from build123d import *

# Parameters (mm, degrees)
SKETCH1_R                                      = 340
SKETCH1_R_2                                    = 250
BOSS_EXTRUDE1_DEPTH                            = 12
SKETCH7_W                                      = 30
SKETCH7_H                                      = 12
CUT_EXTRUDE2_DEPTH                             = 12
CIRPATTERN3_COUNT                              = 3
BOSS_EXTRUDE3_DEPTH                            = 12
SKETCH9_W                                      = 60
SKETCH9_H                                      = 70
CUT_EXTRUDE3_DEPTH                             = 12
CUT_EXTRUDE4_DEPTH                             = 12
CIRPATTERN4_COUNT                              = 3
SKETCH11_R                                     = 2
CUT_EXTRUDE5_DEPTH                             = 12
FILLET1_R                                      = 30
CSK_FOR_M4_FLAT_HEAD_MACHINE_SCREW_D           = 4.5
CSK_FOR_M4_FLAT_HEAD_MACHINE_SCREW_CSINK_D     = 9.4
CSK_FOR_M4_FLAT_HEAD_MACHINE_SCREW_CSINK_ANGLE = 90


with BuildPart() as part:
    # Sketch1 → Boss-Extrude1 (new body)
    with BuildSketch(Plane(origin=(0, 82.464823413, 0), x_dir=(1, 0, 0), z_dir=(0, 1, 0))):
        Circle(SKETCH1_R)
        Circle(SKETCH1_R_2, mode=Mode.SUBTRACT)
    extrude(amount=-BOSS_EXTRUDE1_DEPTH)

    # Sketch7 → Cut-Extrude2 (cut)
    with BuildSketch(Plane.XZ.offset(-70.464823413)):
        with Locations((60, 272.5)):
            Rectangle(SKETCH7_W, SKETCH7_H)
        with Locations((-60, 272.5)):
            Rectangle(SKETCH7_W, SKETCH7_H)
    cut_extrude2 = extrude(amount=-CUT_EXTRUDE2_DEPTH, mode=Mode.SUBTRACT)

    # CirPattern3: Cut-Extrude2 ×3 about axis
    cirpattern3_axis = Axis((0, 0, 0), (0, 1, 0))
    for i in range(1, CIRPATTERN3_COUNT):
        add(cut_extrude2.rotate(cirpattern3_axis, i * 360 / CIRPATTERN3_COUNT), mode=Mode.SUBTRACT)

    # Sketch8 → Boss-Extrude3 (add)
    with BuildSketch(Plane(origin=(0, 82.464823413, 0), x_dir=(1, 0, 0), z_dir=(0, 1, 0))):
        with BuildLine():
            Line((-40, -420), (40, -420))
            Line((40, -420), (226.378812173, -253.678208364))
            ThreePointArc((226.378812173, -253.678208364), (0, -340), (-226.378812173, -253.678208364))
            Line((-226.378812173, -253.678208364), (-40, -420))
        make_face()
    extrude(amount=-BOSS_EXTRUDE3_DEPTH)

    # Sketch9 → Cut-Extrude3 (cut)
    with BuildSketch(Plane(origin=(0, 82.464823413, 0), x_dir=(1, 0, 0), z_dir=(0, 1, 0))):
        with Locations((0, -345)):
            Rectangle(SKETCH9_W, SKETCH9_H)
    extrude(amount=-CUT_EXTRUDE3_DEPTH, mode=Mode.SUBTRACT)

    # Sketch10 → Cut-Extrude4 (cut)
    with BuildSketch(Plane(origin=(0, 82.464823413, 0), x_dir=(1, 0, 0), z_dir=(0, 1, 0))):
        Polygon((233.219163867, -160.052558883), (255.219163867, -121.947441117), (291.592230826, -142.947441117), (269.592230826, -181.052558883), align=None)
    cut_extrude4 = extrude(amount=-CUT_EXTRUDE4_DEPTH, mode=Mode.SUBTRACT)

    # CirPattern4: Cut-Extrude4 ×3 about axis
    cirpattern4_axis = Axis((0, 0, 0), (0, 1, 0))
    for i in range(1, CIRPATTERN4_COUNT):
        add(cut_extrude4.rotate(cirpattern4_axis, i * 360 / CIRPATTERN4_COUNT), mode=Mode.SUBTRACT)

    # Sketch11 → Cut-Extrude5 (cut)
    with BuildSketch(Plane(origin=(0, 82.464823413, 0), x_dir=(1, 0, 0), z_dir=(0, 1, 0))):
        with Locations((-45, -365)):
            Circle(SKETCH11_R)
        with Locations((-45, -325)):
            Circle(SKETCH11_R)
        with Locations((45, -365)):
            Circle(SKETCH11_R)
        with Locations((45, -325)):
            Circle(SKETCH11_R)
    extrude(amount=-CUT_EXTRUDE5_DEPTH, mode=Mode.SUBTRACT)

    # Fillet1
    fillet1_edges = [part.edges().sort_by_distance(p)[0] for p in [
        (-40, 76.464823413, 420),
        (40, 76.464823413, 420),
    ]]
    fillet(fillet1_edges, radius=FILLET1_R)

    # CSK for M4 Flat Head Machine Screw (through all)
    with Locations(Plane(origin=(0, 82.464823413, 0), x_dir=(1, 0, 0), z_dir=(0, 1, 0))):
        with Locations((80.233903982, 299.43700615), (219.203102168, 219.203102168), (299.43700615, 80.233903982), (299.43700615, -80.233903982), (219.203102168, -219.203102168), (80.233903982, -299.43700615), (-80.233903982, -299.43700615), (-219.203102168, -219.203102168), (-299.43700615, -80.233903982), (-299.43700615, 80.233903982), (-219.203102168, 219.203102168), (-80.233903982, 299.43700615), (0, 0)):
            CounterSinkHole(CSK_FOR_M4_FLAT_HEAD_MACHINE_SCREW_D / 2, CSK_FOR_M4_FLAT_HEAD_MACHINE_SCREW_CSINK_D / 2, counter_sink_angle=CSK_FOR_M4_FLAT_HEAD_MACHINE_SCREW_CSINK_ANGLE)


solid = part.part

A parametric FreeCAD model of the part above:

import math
import FreeCAD as App
import Part
import Sketcher

V = App.Vector
Q = App.Units.Quantity


def edges_at(feature, points):
    """Names of the edges that pass closest to the given points."""
    edges = feature.Shape.Edges
    near = lambda p: min(range(len(edges)), key=lambda i: edges[i].distToShape(Part.Vertex(*p))[0])
    return sorted({f"Edge{near(p) + 1}" for p in points})


def add_polygon(sketch, points):
    """Adds a closed chain of lines whose ends are joined by coincident constraints."""
    first, n = sketch.GeometryCount, len(points)
    for a, b in zip(points, points[1:] + points[:1]):
        sketch.addGeometry(Part.LineSegment(App.Vector(*a, 0), App.Vector(*b, 0)), False)
    for i in range(n):
        sketch.addConstraint(Sketcher.Constraint("Coincident", first + i, 2, first + (i + 1) % n, 1))

doc = App.newDocument("Part")
params = doc.addObject("Spreadsheet::Sheet", "Params")
for row, (alias, value) in enumerate([
    ("sketch1_diameter", "680 mm"),
    ("sketch1_diameter2", "500 mm"),
    ("pad1_length", "12 mm"),
    ("sketch2_width", "30 mm"),
    ("sketch2_height", "12 mm"),
    ("pocket1_length", "12 mm"),
    ("sketch3_radius", "340 mm"),
    ("sketch3_width", "80 mm"),
    ("pad2_length", "12 mm"),
    ("sketch4_width", "60 mm"),
    ("sketch4_height", "70 mm"),
    ("pocket2_length", "12 mm"),
    ("sketch5_length", "44 mm"),
    ("sketch5_length2", "42 mm"),
    ("pocket3_length", "12 mm"),
    ("sketch6_diameter", "4 mm"),
    ("pocket4_length", "12 mm"),
    ("fillet_radius", "30 mm"),
    ("sketch7_diameter", "4.5 mm"),
    ("hole_diameter", "4.5 mm"),
    ("hole_csink_diameter", "9.4 mm"),
], start=1):
    params.set(f"A{row}", alias)
    params.set(f"B{row}", "=" + value)
    params.setAlias(f"B{row}", alias)

body = doc.addObject("PartDesign::Body", "Body")

# Sketch on XZ plane
sketch1 = body.newObject("Sketcher::SketchObject", "Sketch")
sketch1.AttachmentSupport = (doc.getObject("XZ_Plane"), [""])
sketch1.MapMode = "FlatFace"
sketch1.AttachmentOffset = App.Placement(V(0, 0, -82.464823), App.Rotation())
sketch1.addGeometry([
    Part.Circle(V(0, 0, 0), V(0, 0, 1), 340),
    Part.Circle(V(0, 0, 0), V(0, 0, 1), 250),
], False)
sketch1.addConstraint([
    Sketcher.Constraint("Coincident", 0, 3, -1, 1),
    Sketcher.Constraint("Coincident", 1, 3, -1, 1),
    Sketcher.Constraint("Diameter", 0, Q("680 mm")),
    Sketcher.Constraint("Diameter", 1, Q("500 mm")),
])
sketch1.setExpression("Constraints[2]", "Params.sketch1_diameter")
sketch1.setExpression("Constraints[3]", "Params.sketch1_diameter2")
pad1 = body.newObject("PartDesign::Pad", "Pad")
pad1.Profile = sketch1
pad1.setExpression("Length", "Params.pad1_length")

# Sketch on XZ plane
sketch2 = body.newObject("Sketcher::SketchObject", "Sketch001")
sketch2.AttachmentSupport = (doc.getObject("XZ_Plane"), [""])
sketch2.MapMode = "FlatFace"
sketch2.AttachmentOffset = App.Placement(V(0, 0, -70.464823), App.Rotation())
add_polygon(sketch2, [(45, 278), (45, 266), (75, 266), (75, 278)])  # lines 0-3
add_polygon(sketch2, [(-75, 278), (-75, 266), (-45, 266), (-45, 278)])  # lines 4-7
sketch2.addConstraint([
    Sketcher.Constraint("Vertical", 0),
    Sketcher.Constraint("Horizontal", 1),
    Sketcher.Constraint("Vertical", 2),
    Sketcher.Constraint("Horizontal", 3),
    Sketcher.Constraint("Vertical", 4),
    Sketcher.Constraint("Horizontal", 5),
    Sketcher.Constraint("Vertical", 6),
    Sketcher.Constraint("Horizontal", 7),
    Sketcher.Constraint("Symmetric", 1, 2, 4, 2, -2),
    Sketcher.Constraint("Symmetric", 3, 2, 6, 2, -2),
    Sketcher.Constraint("DistanceX", 1, 1, 1, 2, Q("30 mm")),
    Sketcher.Constraint("DistanceY", 0, 2, 0, 1, Q("12 mm")),
    Sketcher.Constraint("DistanceX", -1, 1, 0, 2, Q("45 mm")),
    Sketcher.Constraint("DistanceY", -1, 1, 0, 2, Q("266.5 mm")),
])
sketch2.setExpression("Constraints[18]", "Params.sketch2_width")
sketch2.setExpression("Constraints[19]", "Params.sketch2_height")
pocket1 = body.newObject("PartDesign::Pocket", "Pocket")
pocket1.Profile = sketch2
pocket1.setExpression("Length", "Params.pocket1_length")
doc.recompute()

polarpattern = body.newObject("PartDesign::PolarPattern", "PolarPattern")
polarpattern.Originals = [pocket1]
polarpattern.Axis = (doc.getObject("Y_Axis"), [""])
polarpattern.Angle = 360
polarpattern.Occurrences = 3
body.Tip = polarpattern

# Sketch on XZ plane
sketch3 = body.newObject("Sketcher::SketchObject", "Sketch002")
sketch3.AttachmentSupport = (doc.getObject("XZ_Plane"), [""])
sketch3.MapMode = "FlatFace"
sketch3.AttachmentOffset = App.Placement(V(0, 0, -82.464823), App.Rotation())
sketch3.addGeometry([
    Part.LineSegment(V(-40, 420, 0), V(40, 420, 0)),
    Part.LineSegment(V(40, 420, 0), V(226, 254, 0)),
    Part.ArcOfCircle(Part.Circle(V(0, 0, 0), V(0, 0, 1), 340), math.radians(48), math.radians(132)),
    Part.LineSegment(V(-226, 254, 0), V(-40, 420, 0)),
], False)
sketch3.addConstraint([
    Sketcher.Constraint("Coincident", 0, 2, 1, 1),
    Sketcher.Constraint("Tangent", 1, 2, 2, 1),
    Sketcher.Constraint("Tangent", 2, 2, 3, 1),
    Sketcher.Constraint("Coincident", 3, 2, 0, 1),
    Sketcher.Constraint("Horizontal", 0),
    Sketcher.Constraint("Coincident", 2, 3, -1, 1),
    Sketcher.Constraint("Horizontal", 1, 2, 2, 2),
    Sketcher.Constraint("Radius", 2, Q("340 mm")),
    Sketcher.Constraint("DistanceX", 0, 1, 0, 2, Q("80 mm")),
    Sketcher.Constraint("DistanceY", -1, 1, 0, 2, Q("420 mm")),
])
sketch3.setExpression("Constraints[7]", "Params.sketch3_radius")
sketch3.setExpression("Constraints[8]", "Params.sketch3_width")
pad2 = body.newObject("PartDesign::Pad", "Pad001")
pad2.Profile = sketch3
pad2.setExpression("Length", "Params.pad2_length")

# Sketch on XZ plane
sketch4 = body.newObject("Sketcher::SketchObject", "Sketch003")
sketch4.AttachmentSupport = (doc.getObject("XZ_Plane"), [""])
sketch4.MapMode = "FlatFace"
sketch4.AttachmentOffset = App.Placement(V(0, 0, -82.464823), App.Rotation())
add_polygon(sketch4, [(-30, 310), (-30, 380), (30, 380), (30, 310)])  # lines 0-3
sketch4.addConstraint([
    Sketcher.Constraint("Vertical", 0),
    Sketcher.Constraint("Horizontal", 1),
    Sketcher.Constraint("Vertical", 2),
    Sketcher.Constraint("Horizontal", 3),
    Sketcher.Constraint("DistanceX", 1, 1, 1, 2, Q("60 mm")),
    Sketcher.Constraint("DistanceY", 0, 1, 0, 2, Q("70 mm")),
    Sketcher.Constraint("DistanceX", 0, 2, -1, 1, Q("30 mm")),
    Sketcher.Constraint("DistanceY", -1, 1, 0, 2, Q("380 mm")),
])
sketch4.setExpression("Constraints[8]", "Params.sketch4_width")
sketch4.setExpression("Constraints[9]", "Params.sketch4_height")
pocket2 = body.newObject("PartDesign::Pocket", "Pocket001")
pocket2.Profile = sketch4
pocket2.setExpression("Length", "Params.pocket2_length")
pocket2.Reversed = True

# Sketch on XZ plane
sketch5 = body.newObject("Sketcher::SketchObject", "Sketch004")
sketch5.AttachmentSupport = (doc.getObject("XZ_Plane"), [""])
sketch5.MapMode = "FlatFace"
sketch5.AttachmentOffset = App.Placement(V(0, 0, -82.464823), App.Rotation())
add_polygon(sketch5, [(255, 122), (233, 160), (270, 181), (292, 143)])  # lines 0-3
sketch5.addConstraint([
    Sketcher.Constraint("Perpendicular", 0, 1),
    Sketcher.Constraint("Perpendicular", 1, 2),
    Sketcher.Constraint("Perpendicular", 2, 3),
    Sketcher.Constraint("Angle", 0, Q("120 deg")),
    Sketcher.Constraint("Distance", 0, Q("44 mm")),
    Sketcher.Constraint("Distance", 1, Q("42 mm")),
    Sketcher.Constraint("DistanceY", -1, 1, 0, 2, Q("160.052559 mm")),
    Sketcher.Constraint("DistanceX", -1, 1, 1, 2, Q("269.592231 mm")),
])
sketch5.setExpression("Constraints[8]", "Params.sketch5_length")
sketch5.setExpression("Constraints[9]", "Params.sketch5_length2")
pocket3 = body.newObject("PartDesign::Pocket", "Pocket002")
pocket3.Profile = sketch5
pocket3.setExpression("Length", "Params.pocket3_length")
pocket3.Reversed = True
doc.recompute()

polarpattern2 = body.newObject("PartDesign::PolarPattern", "PolarPattern001")
polarpattern2.Originals = [pocket3]
polarpattern2.Axis = (doc.getObject("Y_Axis"), [""])
polarpattern2.Angle = 360
polarpattern2.Occurrences = 3
body.Tip = polarpattern2

# Sketch on XZ plane
sketch6 = body.newObject("Sketcher::SketchObject", "Sketch005")
sketch6.AttachmentSupport = (doc.getObject("XZ_Plane"), [""])
sketch6.MapMode = "FlatFace"
sketch6.AttachmentOffset = App.Placement(V(0, 0, -82.464823), App.Rotation())
sketch6.addGeometry([
    Part.Circle(V(-45, 365, 0), V(0, 0, 1), 2),
    Part.Circle(V(-45, 325, 0), V(0, 0, 1), 2),
    Part.Circle(V(45, 365, 0), V(0, 0, 1), 2),
    Part.Circle(V(45, 325, 0), V(0, 0, 1), 2),
], False)
sketch6.addConstraint([
    Sketcher.Constraint("Equal", 0, 1),
    Sketcher.Constraint("Equal", 1, 2),
    Sketcher.Constraint("Equal", 2, 3),
    Sketcher.Constraint("Symmetric", 0, 3, 2, 3, -2),
    Sketcher.Constraint("Symmetric", 1, 3, 3, 3, -2),
    Sketcher.Constraint("Vertical", 0, 3, 1, 3),
    Sketcher.Constraint("Diameter", 0, Q("4 mm")),
    Sketcher.Constraint("DistanceX", 0, 3, -1, 1, Q("45 mm")),
    Sketcher.Constraint("DistanceY", -1, 1, 0, 3, Q("365 mm")),
    Sketcher.Constraint("DistanceY", -1, 1, 1, 3, Q("325 mm")),
])
sketch6.setExpression("Constraints[6]", "Params.sketch6_diameter")
pocket4 = body.newObject("PartDesign::Pocket", "Pocket003")
pocket4.Profile = sketch6
pocket4.setExpression("Length", "Params.pocket4_length")
pocket4.Reversed = True
doc.recompute()

fillet = body.newObject("PartDesign::Fillet", "Fillet")
fillet.Base = (pocket4, edges_at(pocket4, [(-40, 76.465, 420), (40, 76.465, 420)]))
fillet.setExpression("Radius", "Params.fillet_radius")

# Sketch on XZ plane
sketch7 = body.newObject("Sketcher::SketchObject", "Sketch006")
sketch7.AttachmentSupport = (doc.getObject("XZ_Plane"), [""])
sketch7.MapMode = "FlatFace"
sketch7.AttachmentOffset = App.Placement(V(0, 0, -82.464823), App.Rotation())
sketch7.addGeometry([
    Part.Circle(V(80.2, -299.4, 0), V(0, 0, 1), 2.2),  # 0
    Part.Circle(V(219.2, -219.2, 0), V(0, 0, 1), 2.2),  # 1
    Part.Circle(V(299.4, -80.2, 0), V(0, 0, 1), 2.2),  # 2
    Part.Circle(V(299.4, 80.2, 0), V(0, 0, 1), 2.2),  # 3
    Part.Circle(V(219.2, 219.2, 0), V(0, 0, 1), 2.2),  # 4
    Part.Circle(V(80.2, 299.4, 0), V(0, 0, 1), 2.2),  # 5
    Part.Circle(V(-80.2, 299.4, 0), V(0, 0, 1), 2.2),  # 6
    Part.Circle(V(-219.2, 219.2, 0), V(0, 0, 1), 2.2),  # 7
    Part.Circle(V(-299.4, 80.2, 0), V(0, 0, 1), 2.2),  # 8
    Part.Circle(V(-299.4, -80.2, 0), V(0, 0, 1), 2.2),  # 9
    Part.Circle(V(-219.2, -219.2, 0), V(0, 0, 1), 2.2),  # 10
    Part.Circle(V(-80.2, -299.4, 0), V(0, 0, 1), 2.2),  # 11
    Part.Circle(V(0, 0, 0), V(0, 0, 1), 2.2),  # 12
], False)
sketch7.addConstraint([
    Sketcher.Constraint("Coincident", 12, 3, -1, 1),
    Sketcher.Constraint("Equal", 0, 1),
    Sketcher.Constraint("Equal", 1, 2),
    Sketcher.Constraint("Equal", 2, 3),
    Sketcher.Constraint("Equal", 3, 4),
    Sketcher.Constraint("Equal", 4, 5),
    Sketcher.Constraint("Equal", 5, 6),
    Sketcher.Constraint("Equal", 6, 7),
    Sketcher.Constraint("Equal", 7, 8),
    Sketcher.Constraint("Equal", 8, 9),
    Sketcher.Constraint("Equal", 9, 10),
    Sketcher.Constraint("Equal", 10, 11),
    Sketcher.Constraint("Equal", 11, 12),
    Sketcher.Constraint("Symmetric", 0, 3, 6, 3, -1, 1),
    Sketcher.Constraint("Symmetric", 1, 3, 7, 3, -1, 1),
    Sketcher.Constraint("Symmetric", 2, 3, 8, 3, -1, 1),
    Sketcher.Constraint("Symmetric", 3, 3, 9, 3, -1, 1),
    Sketcher.Constraint("Symmetric", 4, 3, 10, 3, -1, 1),
    Sketcher.Constraint("Symmetric", 5, 3, 11, 3, -1, 1),
    Sketcher.Constraint("Symmetric", 5, 3, 6, 3, -2),
    Sketcher.Constraint("Symmetric", 4, 3, 7, 3, -2),
    Sketcher.Constraint("Symmetric", 3, 3, 8, 3, -2),
    Sketcher.Constraint("Diameter", 0, Q("4.5 mm")),
    Sketcher.Constraint("DistanceX", 0, 3, 1, 3, Q("138.969198 mm")),
    Sketcher.Constraint("DistanceY", 1, 3, 2, 3, Q("138.969198 mm")),
    Sketcher.Constraint("DistanceY", 0, 3, 3, 3, Q("379.67091 mm")),
    Sketcher.Constraint("DistanceX", 6, 3, 3, 3, Q("379.67091 mm")),
    Sketcher.Constraint("DistanceX", -1, 1, 0, 3, Q("80.233904 mm")),
    Sketcher.Constraint("DistanceY", 0, 3, -1, 1, Q("299.437006 mm")),
])
sketch7.setExpression("Constraints[22]", "Params.sketch7_diameter")
doc.recompute()
hole = body.newObject("PartDesign::Hole", "Hole")
hole.Profile = sketch7
hole.ThreadType = "None"
hole.setExpression("Diameter", "Params.hole_diameter")
hole.DepthType = "ThroughAll"
hole.HoleCutType = "Countersink"
hole.setExpression("HoleCutDiameter", "Params.hole_csink_diameter")
hole.HoleCutCountersinkAngle = 90
hole.Reversed = True

doc.recompute()
